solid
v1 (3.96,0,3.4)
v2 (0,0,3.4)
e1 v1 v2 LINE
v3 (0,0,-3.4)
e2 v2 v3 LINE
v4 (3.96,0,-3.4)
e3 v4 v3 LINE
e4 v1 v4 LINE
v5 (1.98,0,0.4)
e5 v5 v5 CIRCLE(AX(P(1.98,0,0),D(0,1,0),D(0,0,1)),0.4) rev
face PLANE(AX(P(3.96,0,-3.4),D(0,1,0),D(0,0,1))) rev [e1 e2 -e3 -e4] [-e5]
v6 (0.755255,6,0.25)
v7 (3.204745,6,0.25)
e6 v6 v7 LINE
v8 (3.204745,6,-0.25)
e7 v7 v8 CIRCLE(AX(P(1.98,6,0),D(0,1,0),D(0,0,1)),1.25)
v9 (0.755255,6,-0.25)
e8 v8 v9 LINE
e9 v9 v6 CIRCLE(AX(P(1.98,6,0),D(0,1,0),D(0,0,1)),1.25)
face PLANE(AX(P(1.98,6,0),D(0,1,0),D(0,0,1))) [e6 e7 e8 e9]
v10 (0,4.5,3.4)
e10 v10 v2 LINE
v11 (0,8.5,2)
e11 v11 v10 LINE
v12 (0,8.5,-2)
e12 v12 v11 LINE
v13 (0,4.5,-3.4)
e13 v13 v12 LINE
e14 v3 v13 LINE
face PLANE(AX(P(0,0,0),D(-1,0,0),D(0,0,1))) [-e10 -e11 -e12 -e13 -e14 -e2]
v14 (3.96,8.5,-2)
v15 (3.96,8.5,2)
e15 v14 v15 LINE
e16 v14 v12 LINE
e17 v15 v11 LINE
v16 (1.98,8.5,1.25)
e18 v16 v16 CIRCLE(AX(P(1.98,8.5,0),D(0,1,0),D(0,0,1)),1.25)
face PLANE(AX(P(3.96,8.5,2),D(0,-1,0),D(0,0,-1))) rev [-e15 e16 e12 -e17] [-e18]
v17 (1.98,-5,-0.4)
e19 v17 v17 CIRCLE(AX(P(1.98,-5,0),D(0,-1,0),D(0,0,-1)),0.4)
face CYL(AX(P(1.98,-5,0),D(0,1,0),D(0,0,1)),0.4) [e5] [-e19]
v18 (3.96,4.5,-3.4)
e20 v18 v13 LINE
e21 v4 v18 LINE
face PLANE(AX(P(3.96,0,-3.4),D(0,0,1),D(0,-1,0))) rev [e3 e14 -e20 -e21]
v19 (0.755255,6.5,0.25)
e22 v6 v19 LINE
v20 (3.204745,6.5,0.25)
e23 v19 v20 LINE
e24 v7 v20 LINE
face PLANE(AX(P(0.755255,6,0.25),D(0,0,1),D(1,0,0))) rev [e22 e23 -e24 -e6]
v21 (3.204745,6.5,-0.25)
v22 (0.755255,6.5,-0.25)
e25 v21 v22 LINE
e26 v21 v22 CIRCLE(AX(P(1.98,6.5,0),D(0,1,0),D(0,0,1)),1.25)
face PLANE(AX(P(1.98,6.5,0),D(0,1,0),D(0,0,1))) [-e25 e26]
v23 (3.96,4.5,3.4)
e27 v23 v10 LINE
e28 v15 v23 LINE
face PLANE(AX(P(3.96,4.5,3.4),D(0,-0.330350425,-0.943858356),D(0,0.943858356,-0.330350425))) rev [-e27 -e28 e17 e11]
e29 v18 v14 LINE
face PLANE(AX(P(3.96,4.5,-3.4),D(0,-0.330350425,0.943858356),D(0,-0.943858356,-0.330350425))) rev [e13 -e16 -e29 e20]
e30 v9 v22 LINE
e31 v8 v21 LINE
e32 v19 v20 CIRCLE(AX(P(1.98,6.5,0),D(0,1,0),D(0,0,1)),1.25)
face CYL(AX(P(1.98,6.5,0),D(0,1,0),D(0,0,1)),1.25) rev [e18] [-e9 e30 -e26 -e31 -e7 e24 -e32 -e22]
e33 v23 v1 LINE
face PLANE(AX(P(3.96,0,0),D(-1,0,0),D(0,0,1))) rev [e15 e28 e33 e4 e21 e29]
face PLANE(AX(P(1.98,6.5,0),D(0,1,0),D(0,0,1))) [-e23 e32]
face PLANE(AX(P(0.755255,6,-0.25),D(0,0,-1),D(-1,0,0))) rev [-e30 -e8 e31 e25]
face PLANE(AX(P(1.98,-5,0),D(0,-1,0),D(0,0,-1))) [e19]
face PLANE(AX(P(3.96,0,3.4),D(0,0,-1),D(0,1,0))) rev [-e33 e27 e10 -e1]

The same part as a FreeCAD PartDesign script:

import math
import FreeCAD as App
import Part
import Sketcher
Q = App.Units.Quantity

doc = App.newDocument("Part")
params = doc.addObject("Spreadsheet::Sheet", "Params")
for row, (alias, value) in enumerate([
    ("sketch1_height", "4 mm"),
    ("sketch1_width", "4.5 mm"),
    ("sketch1_height2", "6.8 mm"),
    ("pad1_length", "3.96 mm"),
    ("sketch2_diameter", "2.5 mm"),
    ("pocket1_length", "2 mm"),
    ("sketch3_radius", "1.25 mm"),
    ("pocket2_length", "0.5 mm"),
    ("sketch4_diameter", "0.8 mm"),
    ("pad2_length", "5 mm"),
], start=1):
    params.set(f"A{row}", alias)
    params.set(f"B{row}", "=" + value)
    params.setAlias(f"B{row}", alias)

body = doc.addObject("PartDesign::Body", "Body")

# Sketch on YZ plane
sketch1 = body.newObject("Sketcher::SketchObject", "Sketch")
sketch1.AttachmentSupport = (doc.getObject("YZ_Plane"), [""])
sketch1.MapMode = "FlatFace"
sketch1.addGeometry([
    Part.LineSegment(App.Vector(0, 3.4, 0), App.Vector(0, -3.4, 0)),  # 0
    Part.LineSegment(App.Vector(0, -3.4, 0), App.Vector(4.5, -3.4, 0)),  # 1
    Part.LineSegment(App.Vector(4.5, -3.4, 0), App.Vector(8.5, -2, 0)),  # 2
    Part.LineSegment(App.Vector(8.5, -2, 0), App.Vector(8.5, 2, 0)),  # 3
    Part.LineSegment(App.Vector(8.5, 2, 0), App.Vector(4.5, 3.4, 0)),  # 4
    Part.LineSegment(App.Vector(4.5, 3.4, 0), App.Vector(0, 3.4, 0)),  # 5
], False)
sketch1.addConstraint([
    Sketcher.Constraint("Coincident", 0, 2, 1, 1),
    Sketcher.Constraint("Coincident", 1, 2, 2, 1),
    Sketcher.Constraint("Coincident", 2, 2, 3, 1),
    Sketcher.Constraint("Coincident", 3, 2, 4, 1),
    Sketcher.Constraint("Coincident", 4, 2, 5, 1),
    Sketcher.Constraint("Coincident", 5, 2, 0, 1),
    Sketcher.Constraint("Vertical", 0),
    Sketcher.Constraint("Horizontal", 1),
    Sketcher.Constraint("Vertical", 3),
    Sketcher.Constraint("Horizontal", 5),
    Sketcher.Constraint("Symmetric", 0, 2, 5, 2, -1, 1),
    Sketcher.Constraint("Vertical", 1, 2, 4, 2),
    Sketcher.Constraint("Equal", 2, 4),
    Sketcher.Constraint("DistanceY", 3, 1, 3, 2, Q("4 mm")),
    Sketcher.Constraint("DistanceX", 1, 1, 1, 2, Q("4.5 mm")),
    Sketcher.Constraint("DistanceY", 0, 2, 0, 1, Q("6.8 mm")),
    Sketcher.Constraint("DistanceX", 1, 2, 2, 2, Q("4 mm")),
])
sketch1.setExpression("Constraints[13]", "Params.sketch1_height")
sketch1.setExpression("Constraints[14]", "Params.sketch1_width")
sketch1.setExpression("Constraints[15]", "Params.sketch1_height2")
pad1 = body.newObject("PartDesign::Pad", "Pad")
pad1.Profile = sketch1
pad1.setExpression("Length", "Params.pad1_length")

# Sketch on XZ plane
sketch2 = body.newObject("Sketcher::SketchObject", "Sketch001")
sketch2.AttachmentSupport = (doc.getObject("XZ_Plane"), [""])
sketch2.MapMode = "FlatFace"
sketch2.AttachmentOffset = App.Placement(App.Vector(0, 0, -8.5), App.Rotation())
sketch2.addGeometry(Part.Circle(App.Vector(2, 0, 0), App.Vector(0, 0, 1), 1.2), False)
sketch2.addConstraint([
    Sketcher.Constraint("PointOnObject", 0, 3, -1),
    Sketcher.Constraint("Diameter", 0, Q("2.5 mm")),
    Sketcher.Constraint("DistanceX", -1, 1, 0, 3, Q("1.98 mm")),
])
sketch2.setExpression("Constraints[1]", "Params.sketch2_diameter")
pocket1 = body.newObject("PartDesign::Pocket", "Pocket")
pocket1.Profile = sketch2
pocket1.setExpression("Length", "Params.pocket1_length")
pocket1.Reversed = True

# Sketch on XZ plane
sketch3 = body.newObject("Sketcher::SketchObject", "Sketch002")
sketch3.AttachmentSupport = (doc.getObject("XZ_Plane"), [""])
sketch3.MapMode = "FlatFace"
sketch3.AttachmentOffset = App.Placement(App.Vector(0, 0, -6.5), App.Rotation())
sketch3.addGeometry([
    Part.LineSegment(App.Vector(3.2, -0.2, 0), App.Vector(0.8, -0.2, 0)),
    Part.ArcOfCircle(Part.Circle(App.Vector(2, 0, 0), App.Vector(0, 0, 1), 1.2), math.radians(168), math.radians(192)),
    Part.LineSegment(App.Vector(0.8, 0.2, 0), App.Vector(3.2, 0.2, 0)),
    Part.ArcOfCircle(Part.Circle(App.Vector(2, 0, 0), App.Vector(0, 0, 1), 1.2), math.radians(-12), math.radians(12)),
], False)
sketch3.addConstraint([
    Sketcher.Constraint("Coincident", 0, 2, 1, 2),
    Sketcher.Constraint("Coincident", 1, 1, 2, 1),
    Sketcher.Constraint("Coincident", 2, 2, 3, 2),
    Sketcher.Constraint("Coincident", 3, 1, 0, 1),
    Sketcher.Constraint("Horizontal", 0),
    Sketcher.Constraint("Horizontal", 2),
    Sketcher.Constraint("Coincident", 3, 3, 1, 3),
    Sketcher.Constraint("Equal", 1, 3),
    Sketcher.Constraint("Symmetric", 0, 2, 1, 1, -1),
    Sketcher.Constraint("Radius", 1, Q("1.25 mm")),
    Sketcher.Constraint("DistanceY", 0, 2, 1, 1, Q("0.5 mm")),
    Sketcher.Constraint("DistanceX", -1, 1, 1, 3, Q("1.98 mm")),
])
sketch3.setExpression("Constraints[9]", "Params.sketch3_radius")
pocket2 = body.newObject("PartDesign::Pocket", "Pocket001")
pocket2.Profile = sketch3
pocket2.setExpression("Length", "Params.pocket2_length")
pocket2.Reversed = True

# Sketch on XZ plane
sketch4 = body.newObject("Sketcher::SketchObject", "Sketch003")
sketch4.AttachmentSupport = (doc.getObject("XZ_Plane"), [""])
sketch4.MapMode = "FlatFace"
sketch4.addGeometry(Part.Circle(App.Vector(1.98, 0, 0), App.Vector(0, 0, 1), 0.4), False)
sketch4.addConstraint([
    Sketcher.Constraint("PointOnObject", 0, 3, -1),
    Sketcher.Constraint("Diameter", 0, Q("0.8 mm")),
    Sketcher.Constraint("DistanceX", -1, 1, 0, 3, Q("1.98 mm")),
])
sketch4.setExpression("Constraints[1]", "Params.sketch4_diameter")
pad2 = body.newObject("PartDesign::Pad", "Pad001")
pad2.Profile = sketch4
pad2.setExpression("Length", "Params.pad2_length")

doc.recompute()
